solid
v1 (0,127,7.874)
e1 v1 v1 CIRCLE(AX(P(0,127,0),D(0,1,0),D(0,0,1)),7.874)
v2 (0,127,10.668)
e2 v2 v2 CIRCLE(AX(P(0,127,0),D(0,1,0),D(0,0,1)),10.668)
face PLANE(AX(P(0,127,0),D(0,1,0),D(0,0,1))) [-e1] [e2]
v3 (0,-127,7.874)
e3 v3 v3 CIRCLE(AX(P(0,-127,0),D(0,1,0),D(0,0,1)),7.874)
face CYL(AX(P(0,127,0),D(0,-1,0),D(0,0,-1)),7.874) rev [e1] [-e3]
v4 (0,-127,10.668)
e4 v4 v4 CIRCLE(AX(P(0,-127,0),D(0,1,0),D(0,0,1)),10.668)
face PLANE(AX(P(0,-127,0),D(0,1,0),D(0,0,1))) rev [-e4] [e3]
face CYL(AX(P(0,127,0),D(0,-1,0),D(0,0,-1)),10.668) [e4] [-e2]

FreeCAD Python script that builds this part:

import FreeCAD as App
import Part
import Sketcher

V = App.Vector
Q = App.Units.Quantity

doc = App.newDocument("Part")
body = doc.addObject("PartDesign::Body", "Body")

# Sketch on XZ plane
sketch1 = body.newObject("Sketcher::SketchObject", "Sketch")
sketch1.AttachmentSupport = (doc.getObject("XZ_Plane"), [""])
sketch1.MapMode = "FlatFace"
sketch1.addGeometry([
    Part.Circle(V(0, 0, 0), V(0, 0, 1), 11),
    Part.Circle(V(0, 0, 0), V(0, 0, 1), 8),
], False)
sketch1.addConstraint([
    Sketcher.Constraint("Coincident", 0, 3, -1, 1),
    Sketcher.Constraint("Coincident", 1, 3, -1, 1),
    Sketcher.Constraint("Diameter", 0, Q("0.84 in")),
    Sketcher.Constraint("Diameter", 1, Q("0.62 in")),
])
pad1 = body.newObject("PartDesign::Pad", "Pad")
pad1.Profile = sketch1
pad1.Length = Q("10 in")
pad1.Midplane = True

doc.recompute()
